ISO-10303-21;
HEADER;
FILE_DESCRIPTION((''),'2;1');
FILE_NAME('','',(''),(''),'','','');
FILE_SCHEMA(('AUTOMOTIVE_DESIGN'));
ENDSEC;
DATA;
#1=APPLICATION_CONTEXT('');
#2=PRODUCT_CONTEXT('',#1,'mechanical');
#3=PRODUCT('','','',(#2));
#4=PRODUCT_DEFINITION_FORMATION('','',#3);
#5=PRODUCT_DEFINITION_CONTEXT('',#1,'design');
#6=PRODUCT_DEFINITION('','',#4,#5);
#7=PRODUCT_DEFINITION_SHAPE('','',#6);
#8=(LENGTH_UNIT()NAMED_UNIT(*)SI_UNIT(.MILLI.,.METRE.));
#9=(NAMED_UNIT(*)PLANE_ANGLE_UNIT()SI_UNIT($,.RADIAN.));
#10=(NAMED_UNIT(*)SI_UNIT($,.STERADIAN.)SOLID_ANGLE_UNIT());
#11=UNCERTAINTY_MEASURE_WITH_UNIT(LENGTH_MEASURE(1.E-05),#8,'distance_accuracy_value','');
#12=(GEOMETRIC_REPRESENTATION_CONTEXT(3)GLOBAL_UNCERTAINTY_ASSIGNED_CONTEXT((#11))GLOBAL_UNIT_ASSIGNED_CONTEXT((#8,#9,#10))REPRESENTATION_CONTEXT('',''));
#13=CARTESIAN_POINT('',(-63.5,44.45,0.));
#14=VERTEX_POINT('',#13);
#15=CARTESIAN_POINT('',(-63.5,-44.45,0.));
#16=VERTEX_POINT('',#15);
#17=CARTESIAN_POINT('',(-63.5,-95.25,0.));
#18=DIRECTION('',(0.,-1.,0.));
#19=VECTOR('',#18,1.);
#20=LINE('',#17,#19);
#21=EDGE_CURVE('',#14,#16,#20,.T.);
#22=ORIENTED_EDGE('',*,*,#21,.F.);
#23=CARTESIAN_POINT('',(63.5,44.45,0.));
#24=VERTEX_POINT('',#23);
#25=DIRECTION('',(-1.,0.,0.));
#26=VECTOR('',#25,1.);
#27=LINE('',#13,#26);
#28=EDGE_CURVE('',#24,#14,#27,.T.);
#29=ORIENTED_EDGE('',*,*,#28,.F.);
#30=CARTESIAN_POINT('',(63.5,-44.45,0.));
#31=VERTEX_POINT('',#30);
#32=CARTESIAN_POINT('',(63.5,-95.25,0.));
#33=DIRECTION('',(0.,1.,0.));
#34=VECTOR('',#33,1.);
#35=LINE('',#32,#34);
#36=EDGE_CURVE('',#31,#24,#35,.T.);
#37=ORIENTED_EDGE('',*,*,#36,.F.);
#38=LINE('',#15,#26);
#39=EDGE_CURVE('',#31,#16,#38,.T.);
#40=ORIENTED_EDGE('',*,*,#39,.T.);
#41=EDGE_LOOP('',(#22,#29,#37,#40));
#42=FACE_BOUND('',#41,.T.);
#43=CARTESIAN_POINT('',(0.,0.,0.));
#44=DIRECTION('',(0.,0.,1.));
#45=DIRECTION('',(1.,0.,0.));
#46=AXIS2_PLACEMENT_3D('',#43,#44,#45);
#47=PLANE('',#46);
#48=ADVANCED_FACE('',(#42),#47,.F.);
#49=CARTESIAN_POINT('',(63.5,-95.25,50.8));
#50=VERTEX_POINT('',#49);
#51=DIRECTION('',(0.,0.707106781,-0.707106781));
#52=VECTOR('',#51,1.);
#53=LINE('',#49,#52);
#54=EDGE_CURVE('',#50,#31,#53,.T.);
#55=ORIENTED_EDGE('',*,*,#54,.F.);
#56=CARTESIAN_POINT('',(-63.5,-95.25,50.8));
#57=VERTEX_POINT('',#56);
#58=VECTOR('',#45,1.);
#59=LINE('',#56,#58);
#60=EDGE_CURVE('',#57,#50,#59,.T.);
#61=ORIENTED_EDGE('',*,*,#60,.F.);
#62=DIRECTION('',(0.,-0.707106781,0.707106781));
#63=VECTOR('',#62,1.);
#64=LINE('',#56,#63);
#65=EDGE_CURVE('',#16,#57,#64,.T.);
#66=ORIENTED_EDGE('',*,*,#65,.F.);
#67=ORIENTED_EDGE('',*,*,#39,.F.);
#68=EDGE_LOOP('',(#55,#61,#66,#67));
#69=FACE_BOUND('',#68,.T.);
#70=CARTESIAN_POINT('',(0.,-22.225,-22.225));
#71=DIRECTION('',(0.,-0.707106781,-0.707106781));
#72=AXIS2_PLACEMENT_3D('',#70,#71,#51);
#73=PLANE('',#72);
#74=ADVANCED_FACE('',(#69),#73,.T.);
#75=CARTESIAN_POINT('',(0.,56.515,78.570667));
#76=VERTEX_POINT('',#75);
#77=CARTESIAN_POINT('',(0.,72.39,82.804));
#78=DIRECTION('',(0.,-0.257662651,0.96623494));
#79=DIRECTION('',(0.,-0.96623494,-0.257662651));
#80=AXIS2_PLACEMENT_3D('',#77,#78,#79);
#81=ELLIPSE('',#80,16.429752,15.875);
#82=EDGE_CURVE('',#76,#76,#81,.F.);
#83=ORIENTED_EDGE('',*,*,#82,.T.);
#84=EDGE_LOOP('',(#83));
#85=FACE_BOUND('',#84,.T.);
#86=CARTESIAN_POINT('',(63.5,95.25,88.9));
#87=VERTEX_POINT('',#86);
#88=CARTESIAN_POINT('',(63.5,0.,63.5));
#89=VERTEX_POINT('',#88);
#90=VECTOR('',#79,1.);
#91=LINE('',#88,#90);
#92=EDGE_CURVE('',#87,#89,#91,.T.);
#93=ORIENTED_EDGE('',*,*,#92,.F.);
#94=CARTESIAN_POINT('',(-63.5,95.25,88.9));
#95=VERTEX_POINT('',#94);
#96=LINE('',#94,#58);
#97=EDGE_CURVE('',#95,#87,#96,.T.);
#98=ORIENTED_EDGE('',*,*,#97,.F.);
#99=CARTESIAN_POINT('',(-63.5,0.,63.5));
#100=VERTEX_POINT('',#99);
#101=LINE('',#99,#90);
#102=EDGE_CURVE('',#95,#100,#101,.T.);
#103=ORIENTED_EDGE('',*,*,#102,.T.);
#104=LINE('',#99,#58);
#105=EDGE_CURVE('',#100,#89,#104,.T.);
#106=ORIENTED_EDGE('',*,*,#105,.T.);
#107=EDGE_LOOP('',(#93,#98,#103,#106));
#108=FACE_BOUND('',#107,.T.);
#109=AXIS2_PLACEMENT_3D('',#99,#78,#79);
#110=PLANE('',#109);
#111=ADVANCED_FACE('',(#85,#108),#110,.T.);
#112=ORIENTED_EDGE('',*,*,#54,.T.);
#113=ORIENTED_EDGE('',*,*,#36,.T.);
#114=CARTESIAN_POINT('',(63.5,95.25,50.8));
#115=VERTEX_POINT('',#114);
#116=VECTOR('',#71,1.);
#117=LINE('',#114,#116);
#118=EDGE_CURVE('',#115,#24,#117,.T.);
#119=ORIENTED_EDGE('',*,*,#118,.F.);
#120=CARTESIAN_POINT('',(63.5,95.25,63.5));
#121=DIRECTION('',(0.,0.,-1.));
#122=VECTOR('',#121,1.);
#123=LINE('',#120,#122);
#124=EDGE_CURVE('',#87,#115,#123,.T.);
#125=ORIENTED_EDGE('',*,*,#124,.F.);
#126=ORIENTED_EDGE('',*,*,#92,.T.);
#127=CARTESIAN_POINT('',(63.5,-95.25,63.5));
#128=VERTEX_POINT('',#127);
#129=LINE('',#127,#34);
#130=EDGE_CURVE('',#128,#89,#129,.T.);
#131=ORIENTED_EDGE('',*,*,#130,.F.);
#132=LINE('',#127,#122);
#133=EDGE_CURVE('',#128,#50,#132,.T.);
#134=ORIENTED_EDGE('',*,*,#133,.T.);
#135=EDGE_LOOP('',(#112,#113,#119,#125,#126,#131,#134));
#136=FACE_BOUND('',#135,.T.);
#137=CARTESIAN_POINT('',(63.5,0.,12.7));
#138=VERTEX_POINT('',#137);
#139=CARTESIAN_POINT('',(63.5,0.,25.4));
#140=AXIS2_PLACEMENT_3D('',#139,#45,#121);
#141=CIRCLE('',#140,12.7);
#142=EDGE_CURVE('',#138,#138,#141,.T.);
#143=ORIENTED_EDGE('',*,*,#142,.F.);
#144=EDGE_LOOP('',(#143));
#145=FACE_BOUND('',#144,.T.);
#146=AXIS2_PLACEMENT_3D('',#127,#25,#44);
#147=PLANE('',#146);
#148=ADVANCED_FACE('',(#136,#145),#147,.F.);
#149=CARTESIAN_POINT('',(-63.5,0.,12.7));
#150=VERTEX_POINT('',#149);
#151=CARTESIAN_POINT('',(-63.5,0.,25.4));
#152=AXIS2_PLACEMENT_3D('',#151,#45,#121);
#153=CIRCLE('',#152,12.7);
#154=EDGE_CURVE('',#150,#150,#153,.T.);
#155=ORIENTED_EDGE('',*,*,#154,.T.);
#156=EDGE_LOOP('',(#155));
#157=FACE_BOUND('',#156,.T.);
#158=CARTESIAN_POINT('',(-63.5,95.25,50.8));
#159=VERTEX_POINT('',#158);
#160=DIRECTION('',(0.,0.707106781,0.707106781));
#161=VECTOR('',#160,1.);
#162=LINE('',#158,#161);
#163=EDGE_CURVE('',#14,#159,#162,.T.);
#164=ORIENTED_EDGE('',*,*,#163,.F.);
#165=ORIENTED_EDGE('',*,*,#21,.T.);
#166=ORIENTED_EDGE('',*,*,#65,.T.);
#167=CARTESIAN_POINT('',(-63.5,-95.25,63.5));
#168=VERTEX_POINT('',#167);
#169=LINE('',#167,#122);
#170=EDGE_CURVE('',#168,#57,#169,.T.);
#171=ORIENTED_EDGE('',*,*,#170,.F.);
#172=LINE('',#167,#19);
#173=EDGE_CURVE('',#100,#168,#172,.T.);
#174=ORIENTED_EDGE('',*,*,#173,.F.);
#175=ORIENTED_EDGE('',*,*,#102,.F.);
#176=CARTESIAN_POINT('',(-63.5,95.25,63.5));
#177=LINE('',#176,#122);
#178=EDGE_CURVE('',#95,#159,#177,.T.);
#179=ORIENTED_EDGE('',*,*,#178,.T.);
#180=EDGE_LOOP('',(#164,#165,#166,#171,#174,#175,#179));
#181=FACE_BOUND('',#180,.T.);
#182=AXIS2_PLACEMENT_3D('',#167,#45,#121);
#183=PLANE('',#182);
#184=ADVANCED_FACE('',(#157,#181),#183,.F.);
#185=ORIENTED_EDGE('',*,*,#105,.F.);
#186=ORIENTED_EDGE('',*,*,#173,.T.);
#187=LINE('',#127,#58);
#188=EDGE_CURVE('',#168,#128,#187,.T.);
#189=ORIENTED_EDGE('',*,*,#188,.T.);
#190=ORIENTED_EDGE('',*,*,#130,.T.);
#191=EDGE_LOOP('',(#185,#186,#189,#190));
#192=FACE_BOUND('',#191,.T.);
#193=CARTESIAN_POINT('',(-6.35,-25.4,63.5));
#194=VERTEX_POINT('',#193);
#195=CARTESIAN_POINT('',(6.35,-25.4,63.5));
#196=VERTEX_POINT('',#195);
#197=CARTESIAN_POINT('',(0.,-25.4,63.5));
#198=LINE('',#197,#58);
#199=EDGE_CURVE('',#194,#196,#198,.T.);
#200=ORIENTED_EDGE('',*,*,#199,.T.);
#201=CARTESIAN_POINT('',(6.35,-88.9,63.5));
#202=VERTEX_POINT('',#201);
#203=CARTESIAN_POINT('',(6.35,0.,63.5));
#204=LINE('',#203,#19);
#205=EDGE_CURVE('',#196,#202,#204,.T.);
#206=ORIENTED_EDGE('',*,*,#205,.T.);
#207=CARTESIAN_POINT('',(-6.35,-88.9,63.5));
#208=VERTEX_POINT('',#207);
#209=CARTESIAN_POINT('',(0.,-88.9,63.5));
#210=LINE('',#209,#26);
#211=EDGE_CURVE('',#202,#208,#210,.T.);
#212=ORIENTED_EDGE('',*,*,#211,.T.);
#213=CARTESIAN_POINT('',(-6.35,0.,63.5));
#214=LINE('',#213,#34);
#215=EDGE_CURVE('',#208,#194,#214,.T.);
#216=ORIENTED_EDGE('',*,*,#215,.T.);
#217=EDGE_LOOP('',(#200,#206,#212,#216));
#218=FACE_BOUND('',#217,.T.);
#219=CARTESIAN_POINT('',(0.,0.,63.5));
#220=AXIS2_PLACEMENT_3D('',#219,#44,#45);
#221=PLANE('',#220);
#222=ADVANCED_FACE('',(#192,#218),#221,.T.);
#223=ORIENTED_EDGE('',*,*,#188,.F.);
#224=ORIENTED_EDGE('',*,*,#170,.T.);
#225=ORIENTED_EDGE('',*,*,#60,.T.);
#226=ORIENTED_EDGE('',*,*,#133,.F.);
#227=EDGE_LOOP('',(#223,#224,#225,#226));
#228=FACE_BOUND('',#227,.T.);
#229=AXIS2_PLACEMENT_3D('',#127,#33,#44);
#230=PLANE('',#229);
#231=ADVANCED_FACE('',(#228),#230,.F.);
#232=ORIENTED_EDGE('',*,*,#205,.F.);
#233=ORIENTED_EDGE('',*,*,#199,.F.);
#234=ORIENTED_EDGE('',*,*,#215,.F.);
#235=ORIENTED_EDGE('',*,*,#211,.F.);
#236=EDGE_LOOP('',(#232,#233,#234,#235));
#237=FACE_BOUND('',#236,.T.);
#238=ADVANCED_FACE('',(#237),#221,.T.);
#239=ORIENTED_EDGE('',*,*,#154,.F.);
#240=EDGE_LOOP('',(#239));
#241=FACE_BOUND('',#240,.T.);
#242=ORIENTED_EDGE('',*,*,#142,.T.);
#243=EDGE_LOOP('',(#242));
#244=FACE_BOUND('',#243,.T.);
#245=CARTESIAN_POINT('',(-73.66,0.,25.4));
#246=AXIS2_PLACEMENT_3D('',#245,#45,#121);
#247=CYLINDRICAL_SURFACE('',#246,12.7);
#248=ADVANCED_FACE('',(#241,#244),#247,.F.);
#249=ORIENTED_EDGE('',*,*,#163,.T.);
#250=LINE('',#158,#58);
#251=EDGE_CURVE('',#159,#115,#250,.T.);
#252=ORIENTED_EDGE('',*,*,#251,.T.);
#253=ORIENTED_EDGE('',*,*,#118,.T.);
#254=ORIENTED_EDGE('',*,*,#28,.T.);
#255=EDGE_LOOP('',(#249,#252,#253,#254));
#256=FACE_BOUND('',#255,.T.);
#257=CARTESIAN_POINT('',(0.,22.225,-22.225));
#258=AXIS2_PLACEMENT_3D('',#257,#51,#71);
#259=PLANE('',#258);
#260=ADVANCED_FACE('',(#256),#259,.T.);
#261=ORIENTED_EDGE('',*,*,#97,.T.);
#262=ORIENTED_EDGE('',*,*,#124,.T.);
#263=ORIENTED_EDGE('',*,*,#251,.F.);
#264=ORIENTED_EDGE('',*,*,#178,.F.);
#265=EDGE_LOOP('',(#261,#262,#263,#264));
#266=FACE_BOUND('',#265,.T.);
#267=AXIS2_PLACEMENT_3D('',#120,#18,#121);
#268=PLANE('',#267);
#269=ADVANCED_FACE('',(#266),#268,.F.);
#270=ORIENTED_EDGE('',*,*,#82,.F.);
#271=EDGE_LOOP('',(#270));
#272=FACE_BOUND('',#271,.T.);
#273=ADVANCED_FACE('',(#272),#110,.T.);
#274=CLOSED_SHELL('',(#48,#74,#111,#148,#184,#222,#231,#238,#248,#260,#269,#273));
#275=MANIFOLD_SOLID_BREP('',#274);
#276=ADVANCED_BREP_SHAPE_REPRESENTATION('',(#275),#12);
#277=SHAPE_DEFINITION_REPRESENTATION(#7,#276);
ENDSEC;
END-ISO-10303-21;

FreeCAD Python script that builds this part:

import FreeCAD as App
import Part
import Sketcher
from FreeCAD import Vector
Q = App.Units.Quantity


def add_polygon(sketch, points):
    """Adds a closed chain of lines whose ends are joined by coincident constraints."""
    first, n = sketch.GeometryCount, len(points)
    for a, b in zip(points, points[1:] + points[:1]):
        sketch.addGeometry(Part.LineSegment(App.Vector(*a, 0), App.Vector(*b, 0)), False)
    for i in range(n):
        sketch.addConstraint(Sketcher.Constraint("Coincident", first + i, 2, first + (i + 1) % n, 1))

doc = App.newDocument("Part")
body = doc.addObject("PartDesign::Body", "Body")

sketch1 = body.newObject("Sketcher::SketchObject", "Sketch")
sketch1.AttachmentSupport = (doc.getObject("XY_Plane"), [""])
sketch1.MapMode = "FlatFace"
add_polygon(sketch1, [(-63.5, 95.25), (-63.5, -95.25), (63.5, -95.25), (63.5, 95.25)])
sketch1.addConstraint([
    Sketcher.Constraint("Vertical", 0),
    Sketcher.Constraint("Horizontal", 1),
    Sketcher.Constraint("Vertical", 2),
    Sketcher.Constraint("Horizontal", 3),
    Sketcher.Constraint("Symmetric", 0, 2, 2, 2, -1, 1),
    Sketcher.Constraint("DistanceX", 1, 1, 1, 2, Q("5 in")),
    Sketcher.Constraint("DistanceY", 0, 2, 0, 1, Q("7.5 in")),
])
pad1 = body.newObject("PartDesign::Pad", "Pad")
pad1.Profile = sketch1
pad1.Length = Q("2.5 in")

sketch2 = body.newObject("Sketcher::SketchObject", "Sketch001")
sketch2.Placement = App.Placement(Vector(0, -22.225, -22.225), App.Rotation(Vector(1, 0, 0), Vector(0, 0.707106781, -0.707106781), Vector(0, 0.707106781, 0.707106781), "ZXY"))
add_polygon(sketch2, [(-63.5, -31.430896), (-63.5, -103.272945), (63.5, -103.272945), (63.5, -31.430896)])
sketch2.addConstraint([
    Sketcher.Constraint("Vertical", 0),
    Sketcher.Constraint("Horizontal", 1),
    Sketcher.Constraint("Vertical", 2),
    Sketcher.Constraint("Horizontal", 3),
    Sketcher.Constraint("DistanceX", 1, 1, 1, 2, Q("5 in")),
    Sketcher.Constraint("DistanceX", 0, 2, -1, 1, Q("2.5 in")),
    Sketcher.Constraint("DistanceY", 0, 2, 0, 1, 71.842049),
    Sketcher.Constraint("DistanceY", 0, 2, -1, 1, 103.272945),
])
pocket1 = body.newObject("PartDesign::Pocket", "Pocket")
pocket1.Profile = sketch2
pocket1.Length = Q("2.5 in")

sketch3 = body.newObject("Sketcher::SketchObject", "Sketch002")
sketch3.AttachmentSupport = (doc.getObject("YZ_Plane"), [""])
sketch3.MapMode = "FlatFace"
sketch3.AttachmentOffset = App.Placement(Vector(0, 0, 2.5 * 25.4), App.Rotation())
sketch3.addGeometry(Part.Circle(Vector(0, 25.4, 0), Vector(0, 0, 1), 12.7), False)
sketch3.addConstraint([
    Sketcher.Constraint("PointOnObject", 0, 3, -2),
    Sketcher.Constraint("Diameter", 0, Q("1 in")),
    Sketcher.Constraint("DistanceY", -1, 1, 0, 3, Q("1 in")),
])
pocket2 = body.newObject("PartDesign::Pocket", "Pocket001")
pocket2.Profile = sketch3
pocket2.Length = Q("5.4 in")
doc.recompute()

mirrored = body.newObject("PartDesign::Mirrored", "Mirrored")
mirrored.Originals = [pocket1]
mirrored.MirrorPlane = (doc.getObject("XZ_Plane"), [""])
body.Tip = mirrored

sketch4 = body.newObject("Sketcher::SketchObject", "Sketch003")
sketch4.AttachmentSupport = (doc.getObject("YZ_Plane"), [""])
sketch4.MapMode = "FlatFace"
sketch4.AttachmentOffset = App.Placement(Vector(0, 0, 2.5 * 25.4), App.Rotation())
add_polygon(sketch4, [(95.25, 63.5), (95.25, 88.9), (0, 63.5)])
sketch4.addConstraint([
    Sketcher.Constraint("Vertical", 0),
    Sketcher.Constraint("Horizontal", 2),
    Sketcher.Constraint("PointOnObject", 1, 2, -2),
    Sketcher.Constraint("DistanceY", 0, 1, 0, 2, Q("1 in")),
    Sketcher.Constraint("DistanceX", 2, 1, 2, 2, Q("3.75 in")),
    Sketcher.Constraint("DistanceY", -1, 1, 0, 2, Q("3.5 in")),
])
pad2 = body.newObject("PartDesign::Pad", "Pad001")
pad2.Profile = sketch4
pad2.Length = Q("5 in")
pad2.Reversed = True

doc.recompute()
